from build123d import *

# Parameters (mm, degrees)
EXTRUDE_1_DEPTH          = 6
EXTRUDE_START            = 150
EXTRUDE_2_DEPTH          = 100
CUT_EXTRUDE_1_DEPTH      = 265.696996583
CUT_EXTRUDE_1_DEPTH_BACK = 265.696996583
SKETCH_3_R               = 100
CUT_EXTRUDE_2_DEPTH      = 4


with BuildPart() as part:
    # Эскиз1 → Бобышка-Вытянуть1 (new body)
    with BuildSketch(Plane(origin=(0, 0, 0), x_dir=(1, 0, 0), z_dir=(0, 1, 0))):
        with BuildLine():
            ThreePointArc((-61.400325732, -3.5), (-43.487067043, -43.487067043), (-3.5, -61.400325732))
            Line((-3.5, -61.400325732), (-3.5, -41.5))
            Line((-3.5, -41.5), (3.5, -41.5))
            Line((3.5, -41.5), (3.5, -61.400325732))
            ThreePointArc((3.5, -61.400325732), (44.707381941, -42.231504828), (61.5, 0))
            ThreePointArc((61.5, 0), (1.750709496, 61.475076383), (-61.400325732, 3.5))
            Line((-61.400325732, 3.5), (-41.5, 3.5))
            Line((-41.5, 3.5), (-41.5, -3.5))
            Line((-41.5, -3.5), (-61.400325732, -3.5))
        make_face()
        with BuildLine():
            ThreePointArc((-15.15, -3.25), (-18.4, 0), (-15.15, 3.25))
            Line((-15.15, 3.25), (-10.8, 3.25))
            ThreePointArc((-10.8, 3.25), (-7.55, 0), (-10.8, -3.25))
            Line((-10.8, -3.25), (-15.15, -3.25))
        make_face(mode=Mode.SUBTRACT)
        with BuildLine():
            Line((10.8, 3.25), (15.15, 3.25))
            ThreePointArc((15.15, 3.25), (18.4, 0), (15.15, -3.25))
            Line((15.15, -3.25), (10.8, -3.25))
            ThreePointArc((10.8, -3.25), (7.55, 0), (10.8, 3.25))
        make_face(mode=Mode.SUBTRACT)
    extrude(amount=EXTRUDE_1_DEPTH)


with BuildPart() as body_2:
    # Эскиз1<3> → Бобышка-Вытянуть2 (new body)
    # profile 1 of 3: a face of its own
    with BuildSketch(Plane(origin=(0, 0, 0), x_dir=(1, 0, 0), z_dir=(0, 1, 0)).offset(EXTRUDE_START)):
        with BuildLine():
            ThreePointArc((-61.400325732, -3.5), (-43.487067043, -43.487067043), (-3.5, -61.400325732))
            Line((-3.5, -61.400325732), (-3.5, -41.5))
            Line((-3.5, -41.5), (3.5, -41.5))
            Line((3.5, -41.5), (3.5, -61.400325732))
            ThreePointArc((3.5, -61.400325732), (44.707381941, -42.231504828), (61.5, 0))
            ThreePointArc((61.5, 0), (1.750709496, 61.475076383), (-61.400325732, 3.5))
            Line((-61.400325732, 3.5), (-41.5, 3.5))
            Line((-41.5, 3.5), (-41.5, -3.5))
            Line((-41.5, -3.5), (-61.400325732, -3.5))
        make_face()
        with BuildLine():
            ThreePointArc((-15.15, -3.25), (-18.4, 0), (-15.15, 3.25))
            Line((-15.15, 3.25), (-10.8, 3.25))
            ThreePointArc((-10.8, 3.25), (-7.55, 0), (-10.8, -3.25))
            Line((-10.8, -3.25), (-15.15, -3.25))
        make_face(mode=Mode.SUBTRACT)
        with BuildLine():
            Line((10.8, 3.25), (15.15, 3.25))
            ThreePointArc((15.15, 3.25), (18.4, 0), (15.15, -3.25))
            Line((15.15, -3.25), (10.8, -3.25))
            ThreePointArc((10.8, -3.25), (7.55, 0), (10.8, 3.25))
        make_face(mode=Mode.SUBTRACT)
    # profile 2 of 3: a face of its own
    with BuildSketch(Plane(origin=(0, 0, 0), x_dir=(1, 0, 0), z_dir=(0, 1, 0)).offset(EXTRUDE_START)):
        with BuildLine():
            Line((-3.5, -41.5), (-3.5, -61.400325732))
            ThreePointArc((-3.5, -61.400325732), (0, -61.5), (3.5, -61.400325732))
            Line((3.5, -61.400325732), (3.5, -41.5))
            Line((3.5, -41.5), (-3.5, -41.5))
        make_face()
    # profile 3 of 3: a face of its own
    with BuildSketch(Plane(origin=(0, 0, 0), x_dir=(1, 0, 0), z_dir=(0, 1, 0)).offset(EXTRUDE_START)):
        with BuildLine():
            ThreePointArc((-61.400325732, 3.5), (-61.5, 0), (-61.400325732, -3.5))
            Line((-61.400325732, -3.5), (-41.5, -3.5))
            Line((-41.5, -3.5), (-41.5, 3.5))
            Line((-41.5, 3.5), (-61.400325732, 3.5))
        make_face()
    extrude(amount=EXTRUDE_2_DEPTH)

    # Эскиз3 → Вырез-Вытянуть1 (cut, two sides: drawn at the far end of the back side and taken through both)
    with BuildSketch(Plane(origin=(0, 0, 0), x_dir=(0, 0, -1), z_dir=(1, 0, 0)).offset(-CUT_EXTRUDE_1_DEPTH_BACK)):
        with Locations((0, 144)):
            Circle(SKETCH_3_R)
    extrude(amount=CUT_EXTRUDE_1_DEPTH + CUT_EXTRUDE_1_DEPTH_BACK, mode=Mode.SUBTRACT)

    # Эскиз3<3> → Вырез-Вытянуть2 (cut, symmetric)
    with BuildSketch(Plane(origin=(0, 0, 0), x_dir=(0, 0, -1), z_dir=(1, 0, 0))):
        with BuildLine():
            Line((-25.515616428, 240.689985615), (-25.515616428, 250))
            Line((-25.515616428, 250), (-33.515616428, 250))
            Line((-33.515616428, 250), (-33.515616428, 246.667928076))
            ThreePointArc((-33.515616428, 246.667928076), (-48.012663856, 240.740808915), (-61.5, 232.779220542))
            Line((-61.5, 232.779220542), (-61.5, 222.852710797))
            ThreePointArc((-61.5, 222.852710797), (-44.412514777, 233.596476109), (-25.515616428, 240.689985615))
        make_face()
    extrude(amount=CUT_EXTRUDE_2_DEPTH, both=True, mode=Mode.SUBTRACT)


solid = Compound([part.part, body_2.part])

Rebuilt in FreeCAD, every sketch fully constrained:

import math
import FreeCAD as App
import Part
import Sketcher

V = App.Vector
Q = App.Units.Quantity

doc = App.newDocument("Part")
body = doc.addObject("PartDesign::Body", "Body")

sketch1 = body.newObject("Sketcher::SketchObject", "Sketch")
sketch1.AttachmentSupport = (doc.getObject("XZ_Plane"), [""])
sketch1.MapMode = "FlatFace"
sketch1.addGeometry([
    Part.ArcOfCircle(Part.Circle(V(0, 0, 0), V(0, 0, 1), 61.5), math.radians(93), math.radians(177)),
    Part.LineSegment(V(-3.5, 61.4, 0), V(-3.5, 41.5, 0)),
    Part.LineSegment(V(-3.5, 41.5, 0), V(3.5, 41.5, 0)),
    Part.LineSegment(V(3.5, 41.5, 0), V(3.5, 61.4, 0)),
    Part.ArcOfCircle(Part.Circle(V(0, 0, 0), V(0, 0, 1), 61.5), math.radians(0), math.radians(87)),
    Part.ArcOfCircle(Part.Circle(V(0, 0, 0), V(0, 0, 1), 61.5), math.radians(-177), math.radians(0)),
    Part.LineSegment(V(-61.4, -3.5, 0), V(-41.5, -3.5, 0)),
    Part.LineSegment(V(-41.5, -3.5, 0), V(-41.5, 3.5, 0)),
    Part.LineSegment(V(-41.5, 3.5, 0), V(-61.4, 3.5, 0)),
    Part.LineSegment(V(-10.8, 3.2, 0), V(-15.2, 3.2, 0)),
    Part.ArcOfCircle(Part.Circle(V(-15.2, 0, 0), V(0, 0, 1), 3.2), math.radians(90), math.radians(270)),
    Part.LineSegment(V(-15.2, -3.2, 0), V(-10.8, -3.2, 0)),
    Part.ArcOfCircle(Part.Circle(V(-10.8, 0, 0), V(0, 0, 1), 3.2), math.radians(-90), math.radians(90)),
    Part.ArcOfCircle(Part.Circle(V(10.8, 0, 0), V(0, 0, 1), 3.2), math.radians(90), math.radians(270)),
    Part.LineSegment(V(10.8, -3.2, 0), V(15.2, -3.2, 0)),
    Part.ArcOfCircle(Part.Circle(V(15.2, 0, 0), V(0, 0, 1), 3.2), math.radians(-90), math.radians(90)),
    Part.LineSegment(V(15.2, 3.2, 0), V(10.8, 3.2, 0)),
], False)
sketch1.addConstraint([
    Sketcher.Constraint("Coincident", 0, 1, 1, 1),
    Sketcher.Constraint("Coincident", 1, 2, 2, 1),
    Sketcher.Constraint("Coincident", 2, 2, 3, 1),
    Sketcher.Constraint("Coincident", 3, 2, 4, 2),
    Sketcher.Constraint("Tangent", 4, 1, 5, 2),
    Sketcher.Constraint("Coincident", 5, 1, 6, 1),
    Sketcher.Constraint("Coincident", 6, 2, 7, 1),
    Sketcher.Constraint("Coincident", 7, 2, 8, 1),
    Sketcher.Constraint("Coincident", 8, 2, 0, 2),
    Sketcher.Constraint("Tangent", 9, 2, 10, 1),
    Sketcher.Constraint("Tangent", 10, 2, 11, 1),
    Sketcher.Constraint("Tangent", 11, 2, 12, 1),
    Sketcher.Constraint("Tangent", 12, 2, 9, 1),
    Sketcher.Constraint("Tangent", 13, 2, 14, 1),
    Sketcher.Constraint("Tangent", 14, 2, 15, 1),
    Sketcher.Constraint("Tangent", 15, 2, 16, 1),
    Sketcher.Constraint("Tangent", 16, 2, 13, 1),
    Sketcher.Constraint("Vertical", 1),
    Sketcher.Constraint("Horizontal", 2),
    Sketcher.Constraint("Vertical", 3),
    Sketcher.Constraint("Horizontal", 6),
    Sketcher.Constraint("Vertical", 7),
    Sketcher.Constraint("Horizontal", 8),
    Sketcher.Constraint("Horizontal", 9),
    Sketcher.Constraint("Horizontal", 11),
    Sketcher.Constraint("Horizontal", 14),
    Sketcher.Constraint("Horizontal", 16),
    Sketcher.Constraint("Coincident", 0, 3, -1, 1),
    Sketcher.Constraint("Coincident", 4, 3, -1, 1),
    Sketcher.Constraint("Equal", 0, 4),
    Sketcher.Constraint("Equal", 4, 5),
    Sketcher.Constraint("Equal", 12, 13),
    Sketcher.Constraint("Symmetric", 12, 3, 13, 3, -1, 1),
    Sketcher.Constraint("Symmetric", 10, 3, 15, 3, -2),
    Sketcher.Constraint("PointOnObject", 4, 1, -1),
    Sketcher.Constraint("Horizontal", 0, 1, 3, 2),
    Sketcher.Constraint("Vertical", 5, 1, 8, 2),
    Sketcher.Constraint("Equal", 8, 1),
    Sketcher.Constraint("Equal", 2, 7),
    Sketcher.Constraint("Radius", 0, Q("61.5 mm")),
    Sketcher.Constraint("DistanceX", 2, 1, 2, 2, Q("7 mm")),
    Sketcher.Constraint("Radius", 10, Q("3.25 mm")),
    Sketcher.Constraint("DistanceX", 9, 2, 9, 1, Q("4.35 mm")),
    Sketcher.Constraint("DistanceX", 12, 3, -1, 1, Q("10.8 mm")),
    Sketcher.Constraint("DistanceY", -1, 1, 1, 2, Q("41.5 mm")),
])
pad1 = body.newObject("PartDesign::Pad", "Pad")
pad1.Profile = sketch1
pad1.Length = 6
pad1.Reversed = True
body2 = doc.addObject("PartDesign::Body", "Body001")

sketch2 = body2.newObject("Sketcher::SketchObject", "Sketch001")
sketch2.AttachmentSupport = (doc.getObject("XZ_Plane001"), [""])
sketch2.MapMode = "FlatFace"
sketch2.AttachmentOffset = App.Placement(V(0, 0, -150), App.Rotation())
sketch2.addGeometry([
    Part.ArcOfCircle(Part.Circle(V(0, 0, 0), V(0, 0, 1), 61.5), math.radians(93), math.radians(177)),
    Part.ArcOfCircle(Part.Circle(V(0, 0, 0), V(0, 0, 1), 61.5), math.radians(86.74), math.radians(93.26)),
    Part.ArcOfCircle(Part.Circle(V(0, 0, 0), V(0, 0, 1), 61.5), math.radians(0), math.radians(87)),
    Part.ArcOfCircle(Part.Circle(V(0, 0, 0), V(0, 0, 1), 61.5), math.radians(-177), math.radians(0)),
    Part.ArcOfCircle(Part.Circle(V(0, 0, 0), V(0, 0, 1), 61.5), math.radians(176.74), math.radians(183.26)),
    Part.LineSegment(V(-10.8, 3.2, 0), V(-15.2, 3.2, 0)),
    Part.ArcOfCircle(Part.Circle(V(-15.2, 0, 0), V(0, 0, 1), 3.2), math.radians(90), math.radians(270)),
    Part.LineSegment(V(-15.2, -3.2, 0), V(-10.8, -3.2, 0)),
    Part.ArcOfCircle(Part.Circle(V(-10.8, 0, 0), V(0, 0, 1), 3.2), math.radians(-90), math.radians(90)),
    Part.ArcOfCircle(Part.Circle(V(10.8, 0, 0), V(0, 0, 1), 3.2), math.radians(90), math.radians(270)),
    Part.LineSegment(V(10.8, -3.2, 0), V(15.2, -3.2, 0)),
    Part.ArcOfCircle(Part.Circle(V(15.2, 0, 0), V(0, 0, 1), 3.2), math.radians(-90), math.radians(90)),
    Part.LineSegment(V(15.2, 3.2, 0), V(10.8, 3.2, 0)),
], False)
sketch2.addConstraint([
    Sketcher.Constraint("Tangent", 0, 1, 1, 2),
    Sketcher.Constraint("Tangent", 1, 1, 2, 2),
    Sketcher.Constraint("Tangent", 2, 1, 3, 2),
    Sketcher.Constraint("Tangent", 3, 1, 4, 2),
    Sketcher.Constraint("Tangent", 4, 1, 0, 2),
    Sketcher.Constraint("Tangent", 5, 2, 6, 1),
    Sketcher.Constraint("Tangent", 6, 2, 7, 1),
    Sketcher.Constraint("Tangent", 7, 2, 8, 1),
    Sketcher.Constraint("Tangent", 8, 2, 5, 1),
    Sketcher.Constraint("Tangent", 9, 2, 10, 1),
    Sketcher.Constraint("Tangent", 10, 2, 11, 1),
    Sketcher.Constraint("Tangent", 11, 2, 12, 1),
    Sketcher.Constraint("Tangent", 12, 2, 9, 1),
    Sketcher.Constraint("Horizontal", 5),
    Sketcher.Constraint("Horizontal", 7),
    Sketcher.Constraint("Horizontal", 10),
    Sketcher.Constraint("Horizontal", 12),
    Sketcher.Constraint("Coincident", 0, 3, -1, 1),
    Sketcher.Constraint("Coincident", 2, 3, -1, 1),
    Sketcher.Constraint("Equal", 8, 9),
    Sketcher.Constraint("Symmetric", 8, 3, 9, 3, -1, 1),
    Sketcher.Constraint("Symmetric", 6, 3, 11, 3, -2),
    Sketcher.Constraint("PointOnObject", 2, 1, -1),
    Sketcher.Constraint("Horizontal", 0, 1, 1, 1),
    Sketcher.Constraint("Vertical", 3, 1, 4, 1),
    Sketcher.Constraint("Radius", 0, Q("61.5 mm")),
    Sketcher.Constraint("Radius", 6, Q("3.25 mm")),
    Sketcher.Constraint("DistanceX", 0, 1, 1, 1, Q("7 mm")),
    Sketcher.Constraint("DistanceY", 3, 1, 4, 1, Q("7 mm")),
    Sketcher.Constraint("DistanceX", 5, 2, 5, 1, Q("4.35 mm")),
    Sketcher.Constraint("DistanceX", 8, 3, -1, 1, Q("10.8 mm")),
])
pad2 = body2.newObject("PartDesign::Pad", "Pad001")
pad2.Profile = sketch2
pad2.Length = 100
pad2.Reversed = True

sketch3 = body2.newObject("Sketcher::SketchObject", "Sketch002")
sketch3.AttachmentSupport = (doc.getObject("YZ_Plane001"), [""])
sketch3.MapMode = "FlatFace"
sketch3.addGeometry(Part.Circle(V(144, 0, 0), V(0, 0, 1), 100), False)
sketch3.addConstraint([
    Sketcher.Constraint("PointOnObject", 0, 3, -1),
    Sketcher.Constraint("Diameter", 0, Q("200 mm")),
    Sketcher.Constraint("DistanceX", -1, 1, 0, 3, Q("144 mm")),
])
pocket1 = body2.newObject("PartDesign::Pocket", "Pocket")
pocket1.Profile = sketch3
pocket1.Type = "ThroughAll"
pocket1.Midplane = True

sketch4 = body2.newObject("Sketcher::SketchObject", "Sketch003")
sketch4.AttachmentSupport = (doc.getObject("YZ_Plane001"), [""])
sketch4.MapMode = "FlatFace"
sketch4.addGeometry([
    Part.LineSegment(V(240.7, 25.5, 0), V(250, 25.5, 0)),
    Part.LineSegment(V(250, 25.5, 0), V(250, 33.5, 0)),
    Part.LineSegment(V(250, 33.5, 0), V(246.7, 33.5, 0)),
    Part.ArcOfCircle(Part.Circle(V(144, 0, 0), V(0, 0, 1), 108), math.radians(18.08), math.radians(34.71)),
    Part.LineSegment(V(232.8, 61.5, 0), V(222.9, 61.5, 0)),
    Part.ArcOfCircle(Part.Circle(V(144, 0, 0), V(0, 0, 1), 100), math.radians(15), math.radians(38)),
], False)
sketch4.addConstraint([
    Sketcher.Constraint("Coincident", 0, 2, 1, 1),
    Sketcher.Constraint("Coincident", 1, 2, 2, 1),
    Sketcher.Constraint("Coincident", 2, 2, 3, 1),
    Sketcher.Constraint("Coincident", 3, 2, 4, 1),
    Sketcher.Constraint("Coincident", 4, 2, 5, 2),
    Sketcher.Constraint("Coincident", 5, 1, 0, 1),
    Sketcher.Constraint("Horizontal", 0),
    Sketcher.Constraint("Vertical", 1),
    Sketcher.Constraint("Horizontal", 2),
    Sketcher.Constraint("Horizontal", 4),
    Sketcher.Constraint("Coincident", 5, 3, 3, 3),
    Sketcher.Constraint("PointOnObject", 3, 3, -1),
    Sketcher.Constraint("Radius", 3, Q("108 mm")),
    Sketcher.Constraint("Radius", 5, Q("100 mm")),
    Sketcher.Constraint("DistanceY", 1, 1, 1, 2, Q("8 mm")),
    Sketcher.Constraint("DistanceX", -1, 1, 3, 3, Q("144 mm")),
    Sketcher.Constraint("DistanceX", -1, 1, 0, 2, Q("250 mm")),
    Sketcher.Constraint("DistanceY", -1, 1, 3, 2, Q("61.5 mm")),
    Sketcher.Constraint("DistanceX", 2, 2, 2, 1, Q("3.332072 mm")),
])
pocket2 = body2.newObject("PartDesign::Pocket", "Pocket001")
pocket2.Profile = sketch4
pocket2.Length = 8
pocket2.Midplane = True

doc.recompute()
